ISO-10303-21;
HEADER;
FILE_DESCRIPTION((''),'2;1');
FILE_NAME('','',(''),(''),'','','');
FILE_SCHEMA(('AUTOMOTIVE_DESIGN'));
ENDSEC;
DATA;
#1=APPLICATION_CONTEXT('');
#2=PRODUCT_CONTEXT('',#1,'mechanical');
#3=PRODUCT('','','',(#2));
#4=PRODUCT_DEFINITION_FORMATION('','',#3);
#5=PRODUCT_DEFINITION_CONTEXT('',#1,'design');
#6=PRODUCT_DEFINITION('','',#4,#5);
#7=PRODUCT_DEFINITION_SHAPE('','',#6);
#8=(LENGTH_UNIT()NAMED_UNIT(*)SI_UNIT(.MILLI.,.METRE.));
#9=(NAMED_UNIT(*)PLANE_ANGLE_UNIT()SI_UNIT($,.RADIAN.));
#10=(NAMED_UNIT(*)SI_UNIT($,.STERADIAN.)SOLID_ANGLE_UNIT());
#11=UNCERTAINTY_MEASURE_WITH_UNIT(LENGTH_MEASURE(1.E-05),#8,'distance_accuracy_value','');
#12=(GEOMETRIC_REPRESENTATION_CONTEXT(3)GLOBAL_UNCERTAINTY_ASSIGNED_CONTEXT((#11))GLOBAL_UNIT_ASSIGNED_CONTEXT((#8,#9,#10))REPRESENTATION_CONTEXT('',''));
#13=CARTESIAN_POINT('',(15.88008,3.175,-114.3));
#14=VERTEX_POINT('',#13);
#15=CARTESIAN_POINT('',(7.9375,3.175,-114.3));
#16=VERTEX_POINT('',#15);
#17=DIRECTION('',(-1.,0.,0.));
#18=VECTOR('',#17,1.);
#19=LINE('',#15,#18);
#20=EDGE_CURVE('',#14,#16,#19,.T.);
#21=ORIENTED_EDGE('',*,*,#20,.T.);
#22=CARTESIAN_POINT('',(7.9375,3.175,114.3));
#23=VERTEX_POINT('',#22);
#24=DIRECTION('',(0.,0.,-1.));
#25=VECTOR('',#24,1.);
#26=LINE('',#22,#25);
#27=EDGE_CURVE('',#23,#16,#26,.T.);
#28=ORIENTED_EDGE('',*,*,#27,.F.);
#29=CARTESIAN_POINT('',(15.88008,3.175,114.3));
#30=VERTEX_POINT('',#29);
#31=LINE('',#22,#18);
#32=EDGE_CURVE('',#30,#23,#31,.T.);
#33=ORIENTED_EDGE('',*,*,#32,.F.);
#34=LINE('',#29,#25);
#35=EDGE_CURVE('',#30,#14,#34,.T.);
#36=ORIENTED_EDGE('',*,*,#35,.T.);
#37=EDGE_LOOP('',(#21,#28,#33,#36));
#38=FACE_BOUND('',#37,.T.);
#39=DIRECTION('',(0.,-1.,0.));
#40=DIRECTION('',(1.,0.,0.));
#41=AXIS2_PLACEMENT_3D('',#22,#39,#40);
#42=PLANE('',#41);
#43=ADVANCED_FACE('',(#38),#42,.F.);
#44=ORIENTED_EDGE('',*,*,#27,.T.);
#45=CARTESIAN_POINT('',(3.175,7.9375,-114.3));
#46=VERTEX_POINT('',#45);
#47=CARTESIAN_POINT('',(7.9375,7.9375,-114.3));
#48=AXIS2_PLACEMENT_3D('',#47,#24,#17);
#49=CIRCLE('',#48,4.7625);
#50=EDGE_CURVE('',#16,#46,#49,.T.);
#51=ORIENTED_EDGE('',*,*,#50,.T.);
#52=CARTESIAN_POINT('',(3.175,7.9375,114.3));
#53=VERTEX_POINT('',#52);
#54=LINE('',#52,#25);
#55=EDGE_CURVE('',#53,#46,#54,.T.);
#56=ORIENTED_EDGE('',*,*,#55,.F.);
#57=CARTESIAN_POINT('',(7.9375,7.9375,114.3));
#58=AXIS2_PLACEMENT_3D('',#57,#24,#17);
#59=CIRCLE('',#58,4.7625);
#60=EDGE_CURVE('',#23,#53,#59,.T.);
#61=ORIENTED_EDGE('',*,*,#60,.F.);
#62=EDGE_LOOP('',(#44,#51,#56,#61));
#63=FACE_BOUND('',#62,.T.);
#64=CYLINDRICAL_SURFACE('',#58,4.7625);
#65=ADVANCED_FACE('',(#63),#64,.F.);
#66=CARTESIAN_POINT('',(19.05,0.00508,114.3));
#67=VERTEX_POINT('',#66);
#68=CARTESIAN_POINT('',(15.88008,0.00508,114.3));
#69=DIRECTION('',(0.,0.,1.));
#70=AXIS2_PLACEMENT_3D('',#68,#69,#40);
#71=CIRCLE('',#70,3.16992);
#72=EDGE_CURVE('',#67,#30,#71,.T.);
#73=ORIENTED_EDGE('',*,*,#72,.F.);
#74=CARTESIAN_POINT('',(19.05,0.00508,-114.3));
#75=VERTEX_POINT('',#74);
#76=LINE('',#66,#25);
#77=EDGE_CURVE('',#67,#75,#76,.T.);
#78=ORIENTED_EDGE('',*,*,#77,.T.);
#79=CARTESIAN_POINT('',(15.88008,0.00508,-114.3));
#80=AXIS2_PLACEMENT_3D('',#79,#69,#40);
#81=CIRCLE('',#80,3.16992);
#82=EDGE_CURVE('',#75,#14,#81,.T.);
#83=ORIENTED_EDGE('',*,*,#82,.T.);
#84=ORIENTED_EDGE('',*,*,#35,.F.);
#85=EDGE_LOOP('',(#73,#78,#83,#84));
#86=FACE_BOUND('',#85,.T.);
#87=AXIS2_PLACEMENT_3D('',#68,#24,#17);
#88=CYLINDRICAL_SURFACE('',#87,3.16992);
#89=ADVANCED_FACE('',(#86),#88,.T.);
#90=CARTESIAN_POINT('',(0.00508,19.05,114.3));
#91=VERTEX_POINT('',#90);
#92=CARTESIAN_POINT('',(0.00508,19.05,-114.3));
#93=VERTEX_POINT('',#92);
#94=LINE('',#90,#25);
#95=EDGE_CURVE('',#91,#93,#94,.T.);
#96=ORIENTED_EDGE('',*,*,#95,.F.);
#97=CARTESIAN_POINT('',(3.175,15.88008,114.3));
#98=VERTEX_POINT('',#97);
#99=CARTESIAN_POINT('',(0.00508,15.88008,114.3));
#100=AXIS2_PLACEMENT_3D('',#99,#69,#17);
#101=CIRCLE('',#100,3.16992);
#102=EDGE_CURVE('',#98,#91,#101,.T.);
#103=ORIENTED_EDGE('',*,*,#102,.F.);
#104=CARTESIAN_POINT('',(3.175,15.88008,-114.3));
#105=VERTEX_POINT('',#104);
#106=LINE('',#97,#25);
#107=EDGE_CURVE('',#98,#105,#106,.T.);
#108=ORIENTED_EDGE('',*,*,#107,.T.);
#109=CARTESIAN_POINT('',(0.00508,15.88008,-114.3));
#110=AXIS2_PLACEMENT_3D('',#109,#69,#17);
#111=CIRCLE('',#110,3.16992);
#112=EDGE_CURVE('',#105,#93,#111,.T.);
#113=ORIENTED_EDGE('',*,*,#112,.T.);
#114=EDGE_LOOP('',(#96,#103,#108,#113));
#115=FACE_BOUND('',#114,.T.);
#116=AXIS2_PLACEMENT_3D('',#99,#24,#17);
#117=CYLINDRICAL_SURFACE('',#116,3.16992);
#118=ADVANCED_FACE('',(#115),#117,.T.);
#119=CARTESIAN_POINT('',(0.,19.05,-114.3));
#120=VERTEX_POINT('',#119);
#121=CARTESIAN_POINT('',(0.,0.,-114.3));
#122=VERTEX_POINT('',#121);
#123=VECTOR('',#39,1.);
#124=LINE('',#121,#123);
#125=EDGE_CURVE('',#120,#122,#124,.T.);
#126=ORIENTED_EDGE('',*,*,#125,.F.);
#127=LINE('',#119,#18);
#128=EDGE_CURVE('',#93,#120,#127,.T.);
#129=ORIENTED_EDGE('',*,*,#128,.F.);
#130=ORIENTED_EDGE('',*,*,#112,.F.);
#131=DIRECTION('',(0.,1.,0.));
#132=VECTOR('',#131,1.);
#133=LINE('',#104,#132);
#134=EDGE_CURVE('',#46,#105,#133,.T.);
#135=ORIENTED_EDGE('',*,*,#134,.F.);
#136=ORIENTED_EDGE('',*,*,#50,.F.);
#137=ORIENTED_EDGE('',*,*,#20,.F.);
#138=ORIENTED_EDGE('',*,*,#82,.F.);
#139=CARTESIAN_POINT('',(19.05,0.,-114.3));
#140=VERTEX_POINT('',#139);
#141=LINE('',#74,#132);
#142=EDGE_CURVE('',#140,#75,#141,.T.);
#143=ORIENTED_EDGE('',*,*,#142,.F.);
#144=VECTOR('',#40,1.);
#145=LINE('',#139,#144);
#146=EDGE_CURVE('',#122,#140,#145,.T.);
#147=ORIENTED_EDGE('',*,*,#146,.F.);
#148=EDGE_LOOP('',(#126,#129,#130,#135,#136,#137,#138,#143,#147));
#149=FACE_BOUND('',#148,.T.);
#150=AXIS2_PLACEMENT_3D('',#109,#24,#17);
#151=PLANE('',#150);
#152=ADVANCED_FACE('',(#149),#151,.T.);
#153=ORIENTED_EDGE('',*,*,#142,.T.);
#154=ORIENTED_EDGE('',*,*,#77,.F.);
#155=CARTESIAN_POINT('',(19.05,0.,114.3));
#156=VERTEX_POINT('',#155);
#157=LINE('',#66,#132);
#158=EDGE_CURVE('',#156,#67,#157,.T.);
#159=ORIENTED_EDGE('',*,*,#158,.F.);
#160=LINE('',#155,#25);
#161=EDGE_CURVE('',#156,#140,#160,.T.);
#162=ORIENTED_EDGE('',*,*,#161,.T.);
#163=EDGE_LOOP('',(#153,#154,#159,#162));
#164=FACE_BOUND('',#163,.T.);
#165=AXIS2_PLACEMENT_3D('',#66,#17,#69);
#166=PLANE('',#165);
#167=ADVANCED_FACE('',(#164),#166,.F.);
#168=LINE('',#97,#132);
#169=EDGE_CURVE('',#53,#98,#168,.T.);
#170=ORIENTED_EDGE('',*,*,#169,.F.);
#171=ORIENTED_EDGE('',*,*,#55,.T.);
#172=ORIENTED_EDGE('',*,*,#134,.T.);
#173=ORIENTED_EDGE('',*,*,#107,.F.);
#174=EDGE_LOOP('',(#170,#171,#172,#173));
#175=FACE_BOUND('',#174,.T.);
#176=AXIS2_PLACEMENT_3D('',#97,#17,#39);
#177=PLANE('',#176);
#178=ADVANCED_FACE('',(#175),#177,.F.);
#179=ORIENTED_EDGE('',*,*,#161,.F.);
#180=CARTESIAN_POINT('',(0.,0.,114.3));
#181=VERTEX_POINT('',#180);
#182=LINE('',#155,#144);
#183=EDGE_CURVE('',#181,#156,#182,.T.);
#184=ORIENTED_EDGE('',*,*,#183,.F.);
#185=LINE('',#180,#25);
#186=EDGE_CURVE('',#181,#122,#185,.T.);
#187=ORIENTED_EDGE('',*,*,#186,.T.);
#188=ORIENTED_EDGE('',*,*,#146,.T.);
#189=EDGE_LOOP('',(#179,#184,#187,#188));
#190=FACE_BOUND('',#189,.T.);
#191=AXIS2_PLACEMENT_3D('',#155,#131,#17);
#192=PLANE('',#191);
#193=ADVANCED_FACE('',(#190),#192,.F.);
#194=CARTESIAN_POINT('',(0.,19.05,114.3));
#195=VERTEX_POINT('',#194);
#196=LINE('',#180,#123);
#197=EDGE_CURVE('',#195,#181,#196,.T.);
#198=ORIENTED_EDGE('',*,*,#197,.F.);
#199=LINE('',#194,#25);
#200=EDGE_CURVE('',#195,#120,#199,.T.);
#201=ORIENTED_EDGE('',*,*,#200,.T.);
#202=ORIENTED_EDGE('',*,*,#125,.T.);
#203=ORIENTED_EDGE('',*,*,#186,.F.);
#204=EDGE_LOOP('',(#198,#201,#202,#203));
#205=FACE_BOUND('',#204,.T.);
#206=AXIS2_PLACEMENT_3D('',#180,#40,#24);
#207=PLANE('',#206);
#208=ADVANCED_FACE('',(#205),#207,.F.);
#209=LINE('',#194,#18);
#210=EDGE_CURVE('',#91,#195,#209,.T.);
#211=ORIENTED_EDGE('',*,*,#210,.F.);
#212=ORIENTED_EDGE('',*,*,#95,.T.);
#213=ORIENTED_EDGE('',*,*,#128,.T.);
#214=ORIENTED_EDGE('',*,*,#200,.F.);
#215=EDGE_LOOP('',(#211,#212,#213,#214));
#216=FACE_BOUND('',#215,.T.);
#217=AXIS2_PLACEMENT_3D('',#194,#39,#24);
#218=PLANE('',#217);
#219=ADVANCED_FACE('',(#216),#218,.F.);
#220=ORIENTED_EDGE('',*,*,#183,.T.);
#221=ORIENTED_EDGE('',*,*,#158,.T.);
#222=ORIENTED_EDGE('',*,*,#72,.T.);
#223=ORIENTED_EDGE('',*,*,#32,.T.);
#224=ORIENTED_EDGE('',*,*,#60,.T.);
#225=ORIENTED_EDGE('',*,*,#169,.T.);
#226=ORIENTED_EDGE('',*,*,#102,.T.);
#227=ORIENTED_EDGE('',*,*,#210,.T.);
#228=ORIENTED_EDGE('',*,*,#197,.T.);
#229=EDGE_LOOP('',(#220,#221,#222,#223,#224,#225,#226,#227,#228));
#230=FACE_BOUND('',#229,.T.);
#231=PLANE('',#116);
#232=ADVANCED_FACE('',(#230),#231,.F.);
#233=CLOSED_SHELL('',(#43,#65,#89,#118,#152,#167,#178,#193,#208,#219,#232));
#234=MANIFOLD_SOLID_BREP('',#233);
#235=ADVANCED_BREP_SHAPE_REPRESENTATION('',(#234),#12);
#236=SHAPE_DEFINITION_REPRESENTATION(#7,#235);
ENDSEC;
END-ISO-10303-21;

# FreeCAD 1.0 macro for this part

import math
import FreeCAD as App
import Part
import Sketcher
Q = App.Units.Quantity

doc = App.newDocument("Part")
params = doc.addObject("Spreadsheet::Sheet", "Params")
for row, (alias, value) in enumerate([
    ("sketch1_radius", "0.1875 in"),
    ("sketch1_width", "0.75 in"),
    ("pad1_length", "9 in"),
], start=1):
    params.set(f"A{row}", alias)
    params.set(f"B{row}", "=" + value)
    params.setAlias(f"B{row}", alias)

body = doc.addObject("PartDesign::Body", "Body")

# Sketch on XY plane
sketch1 = body.newObject("Sketcher::SketchObject", "Sketch")
sketch1.AttachmentSupport = (doc.getObject("XY_Plane"), [""])
sketch1.MapMode = "FlatFace"
sketch1.addGeometry(Part.LineSegment(App.Vector(0, 19.05, 0), App.Vector(0, 0, 0)), False)
sketch1.addGeometry(Part.LineSegment(App.Vector(0, 0, 0), App.Vector(19.05, 0, 0)), False)
sketch1.addGeometry(Part.LineSegment(App.Vector(19.05, 0, 0), App.Vector(19.05, 0.00508, 0)), False)
sketch1.addGeometry(Part.ArcOfCircle(Part.Circle(App.Vector(15.88008, 0.00508, 0), App.Vector(0, 0, 1), 3.16992), math.radians(0), math.radians(90)), False)
sketch1.addGeometry(Part.LineSegment(App.Vector(15.88008, 3.175, 0), App.Vector(7.9375, 3.175, 0)), False)
sketch1.addGeometry(Part.ArcOfCircle(Part.Circle(App.Vector(7.9375, 7.9375, 0), App.Vector(0, 0, 1), 4.7625), math.radians(-180), math.radians(-90)), False)
sketch1.addGeometry(Part.LineSegment(App.Vector(3.175, 7.9375, 0), App.Vector(3.175, 15.88008, 0)), False)
sketch1.addGeometry(Part.ArcOfCircle(Part.Circle(App.Vector(0.00508, 15.88008, 0), App.Vector(0, 0, 1), 3.16992), math.radians(0), math.radians(90)), False)
sketch1.addGeometry(Part.LineSegment(App.Vector(0.00508, 19.05, 0), App.Vector(0, 19.05, 0)), False)
sketch1.addConstraint(Sketcher.Constraint("Coincident", 0, 2, 1, 1))
sketch1.addConstraint(Sketcher.Constraint("Coincident", 1, 2, 2, 1))
sketch1.addConstraint(Sketcher.Constraint("Tangent", 2, 2, 3, 1))
sketch1.addConstraint(Sketcher.Constraint("Tangent", 3, 2, 4, 1))
sketch1.addConstraint(Sketcher.Constraint("Tangent", 4, 2, 5, 2))
sketch1.addConstraint(Sketcher.Constraint("Tangent", 5, 1, 6, 1))
sketch1.addConstraint(Sketcher.Constraint("Tangent", 6, 2, 7, 1))
sketch1.addConstraint(Sketcher.Constraint("Tangent", 7, 2, 8, 1))
sketch1.addConstraint(Sketcher.Constraint("Coincident", 8, 2, 0, 1))
sketch1.addConstraint(Sketcher.Constraint("Vertical", 0))
sketch1.addConstraint(Sketcher.Constraint("Horizontal", 1))
sketch1.addConstraint(Sketcher.Constraint("Horizontal", 4))
sketch1.addConstraint(Sketcher.Constraint("Vertical", 6))
sketch1.addConstraint(Sketcher.Constraint("Coincident", 0, 2, -1, 1))
sketch1.addConstraint(Sketcher.Constraint("Equal", 3, 7))
sketch1.addConstraint(Sketcher.Constraint("Horizontal", 3, 3, 2, 2))
sketch1.addConstraint(Sketcher.Constraint("Equal", 1, 0))
sketch1.addConstraint(Sketcher.Constraint("Equal", 8, 2))
sketch1.addConstraint(Sketcher.Constraint("Equal", 4, 6))
sketch1.addConstraint(Sketcher.Constraint("Radius", 5, Q("0.1875 in")))
sketch1.addConstraint(Sketcher.Constraint("DistanceX", 1, 1, 1, 2, Q("0.75 in")))
sketch1.addConstraint(Sketcher.Constraint("Radius", 3, Q("0.1248 in")))
sketch1.addConstraint(Sketcher.Constraint("DistanceX", 4, 2, 4, 1, Q("0.3127 in")))
sketch1.setExpression("Constraints[19]", "Params.sketch1_radius")
sketch1.setExpression("Constraints[20]", "Params.sketch1_width")
pad1 = body.newObject("PartDesign::Pad", "Pad")
pad1.Profile = sketch1
pad1.setExpression("Length", "Params.pad1_length")
pad1.Midplane = True

doc.recompute()
